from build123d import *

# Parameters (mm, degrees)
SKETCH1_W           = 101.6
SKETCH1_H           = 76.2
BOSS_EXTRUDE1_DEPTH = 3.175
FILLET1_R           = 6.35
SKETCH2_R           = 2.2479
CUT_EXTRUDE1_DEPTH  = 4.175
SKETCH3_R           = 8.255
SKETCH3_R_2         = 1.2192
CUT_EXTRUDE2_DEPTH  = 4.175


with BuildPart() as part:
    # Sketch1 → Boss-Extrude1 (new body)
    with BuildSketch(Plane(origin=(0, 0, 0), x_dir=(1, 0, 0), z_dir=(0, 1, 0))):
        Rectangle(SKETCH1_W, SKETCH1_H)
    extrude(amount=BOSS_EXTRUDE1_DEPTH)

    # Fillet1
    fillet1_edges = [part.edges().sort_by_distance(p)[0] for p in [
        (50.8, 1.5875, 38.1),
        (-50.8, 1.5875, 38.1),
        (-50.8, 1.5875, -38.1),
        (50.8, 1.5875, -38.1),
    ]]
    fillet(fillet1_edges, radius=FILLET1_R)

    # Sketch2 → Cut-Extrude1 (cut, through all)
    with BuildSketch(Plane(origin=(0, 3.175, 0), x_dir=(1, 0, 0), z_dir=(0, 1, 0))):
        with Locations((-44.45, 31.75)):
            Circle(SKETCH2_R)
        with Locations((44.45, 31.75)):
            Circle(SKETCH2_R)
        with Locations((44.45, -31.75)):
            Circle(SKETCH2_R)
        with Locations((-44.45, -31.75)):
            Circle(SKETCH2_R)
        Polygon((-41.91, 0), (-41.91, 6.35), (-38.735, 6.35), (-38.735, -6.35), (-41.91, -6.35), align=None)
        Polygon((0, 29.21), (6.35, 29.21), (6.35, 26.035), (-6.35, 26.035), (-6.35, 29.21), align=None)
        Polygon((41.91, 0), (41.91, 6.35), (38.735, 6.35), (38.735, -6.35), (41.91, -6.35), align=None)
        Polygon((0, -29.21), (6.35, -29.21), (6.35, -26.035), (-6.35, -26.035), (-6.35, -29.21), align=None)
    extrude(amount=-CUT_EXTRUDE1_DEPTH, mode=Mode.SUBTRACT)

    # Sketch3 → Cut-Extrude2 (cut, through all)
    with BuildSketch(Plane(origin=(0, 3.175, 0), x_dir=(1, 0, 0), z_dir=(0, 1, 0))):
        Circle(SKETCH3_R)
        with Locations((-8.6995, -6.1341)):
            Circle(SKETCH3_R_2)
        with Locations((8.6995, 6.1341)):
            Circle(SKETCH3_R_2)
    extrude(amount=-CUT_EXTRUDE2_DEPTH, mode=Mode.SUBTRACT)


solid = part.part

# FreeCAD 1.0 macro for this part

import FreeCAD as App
import Part
import Sketcher
from FreeCAD import Vector
Q = App.Units.Quantity


def edges_at(feature, points):
    """Names of the edges that pass closest to the given points."""
    edges = feature.Shape.Edges
    near = lambda p: min(range(len(edges)), key=lambda i: edges[i].distToShape(Part.Vertex(*p))[0])
    return sorted({f"Edge{near(p) + 1}" for p in points})


def add_polygon(sketch, points):
    """Adds a closed chain of lines whose ends are joined by coincident constraints."""
    first, n = sketch.GeometryCount, len(points)
    for a, b in zip(points, points[1:] + points[:1]):
        sketch.addGeometry(Part.LineSegment(App.Vector(*a, 0), App.Vector(*b, 0)), False)
    for i in range(n):
        sketch.addConstraint(Sketcher.Constraint("Coincident", first + i, 2, first + (i + 1) % n, 1))

doc = App.newDocument("Part")
body = doc.addObject("PartDesign::Body", "Body")

sketch1 = body.newObject("Sketcher::SketchObject", "Sketch")
sketch1.AttachmentSupport = (doc.getObject("XZ_Plane"), [""])
sketch1.MapMode = "FlatFace"
add_polygon(sketch1, [(-50.8, -38.1), (-50.8, 38.1), (50.8, 38.1), (50.8, -38.1)])
sketch1.addConstraint([
    Sketcher.Constraint("Vertical", 0),
    Sketcher.Constraint("Horizontal", 1),
    Sketcher.Constraint("Vertical", 2),
    Sketcher.Constraint("Horizontal", 3),
    Sketcher.Constraint("Symmetric", 0, 2, 2, 2, -1, 1),
    Sketcher.Constraint("DistanceX", 1, 1, 1, 2, Q("4 in")),
    Sketcher.Constraint("DistanceY", 0, 1, 0, 2, Q("3 in")),
])
pad1 = body.newObject("PartDesign::Pad", "Pad")
pad1.Profile = sketch1
pad1.Length = Q("0.125 in")
pad1.Reversed = True
doc.recompute()

fillet = body.newObject("PartDesign::Fillet", "Fillet")
fillet.Base = (pad1, edges_at(pad1, [
    (50.8, 1.587, 38.1),
    (-50.8, 1.587, 38.1),
    (-50.8, 1.587, -38.1),
    (50.8, 1.587, -38.1),
]))
fillet.Radius = Q("0.25 in")

sketch2 = body.newObject("Sketcher::SketchObject", "Sketch001")
sketch2.AttachmentSupport = (doc.getObject("XZ_Plane"), [""])
sketch2.MapMode = "FlatFace"
sketch2.AttachmentOffset = App.Placement(Vector(0, 0, -0.125 * 25.4), App.Rotation())
sketch2.addGeometry(Part.Circle(Vector(-44.45, -31.75, 0), Vector(0, 0, 1), 2.2479), False)
sketch2.addGeometry(Part.Circle(Vector(44.45, -31.75, 0), Vector(0, 0, 1), 2.2479), False)
sketch2.addGeometry(Part.Circle(Vector(44.45, 31.75, 0), Vector(0, 0, 1), 2.2479), False)
sketch2.addGeometry(Part.Circle(Vector(-44.45, 31.75, 0), Vector(0, 0, 1), 2.2479), False)
add_polygon(sketch2, [(-41.91, -6.35), (-41.91, 6.35), (-38.735, 6.35), (-38.735, -6.35)])
add_polygon(sketch2, [(6.35, -29.21), (-6.35, -29.21), (-6.35, -26.035), (6.35, -26.035)])
add_polygon(sketch2, [(41.91, -6.35), (38.735, -6.35), (38.735, 6.35), (41.91, 6.35)])
add_polygon(sketch2, [(6.35, 29.21), (6.35, 26.035), (-6.35, 26.035), (-6.35, 29.21)])
sketch2.addConstraint([
    Sketcher.Constraint("Vertical", 4),
    Sketcher.Constraint("Horizontal", 5),
    Sketcher.Constraint("Vertical", 6),
    Sketcher.Constraint("Horizontal", 7),
    Sketcher.Constraint("Horizontal", 8),
    Sketcher.Constraint("Vertical", 9),
    Sketcher.Constraint("Horizontal", 10),
    Sketcher.Constraint("Vertical", 11),
    Sketcher.Constraint("Horizontal", 12),
    Sketcher.Constraint("Vertical", 13),
    Sketcher.Constraint("Horizontal", 14),
    Sketcher.Constraint("Vertical", 15),
    Sketcher.Constraint("Vertical", 16),
    Sketcher.Constraint("Horizontal", 17),
    Sketcher.Constraint("Vertical", 18),
    Sketcher.Constraint("Horizontal", 19),
    Sketcher.Constraint("Equal", 0, 1),
    Sketcher.Constraint("Equal", 1, 2),
    Sketcher.Constraint("Equal", 2, 3),
    Sketcher.Constraint("Symmetric", 0, 3, 2, 3, -1, 1),
    Sketcher.Constraint("Symmetric", 1, 3, 3, 3, -1, 1),
    Sketcher.Constraint("Symmetric", 5, 2, 12, 2, -1, 1),
    Sketcher.Constraint("Symmetric", 7, 2, 14, 2, -1, 1),
    Sketcher.Constraint("Symmetric", 9, 2, 16, 2, -1, 1),
    Sketcher.Constraint("Symmetric", 11, 2, 18, 2, -1, 1),
    Sketcher.Constraint("Symmetric", 0, 3, 1, 3, -2),
    Sketcher.Constraint("Horizontal", 7, 2, 12, 2),
    Sketcher.Constraint("Vertical", 11, 2, 16, 2),
    Sketcher.Constraint("Equal", 19, 4),
    Sketcher.Constraint("Equal", 14, 9),
    Sketcher.Constraint("Diameter", 0, Q("0.177 in")),
    Sketcher.Constraint("DistanceX", 8, 2, 8, 1, Q("0.5 in")),
    Sketcher.Constraint("DistanceY", 4, 2, 3, 3, Q("1 in")),
    Sketcher.Constraint("DistanceX", 0, 3, 10, 2, Q("2 in")),
    Sketcher.Constraint("DistanceX", 3, 3, 4, 2, Q("0.1 in")),
    Sketcher.Constraint("DistanceY", 0, 3, 8, 2, Q("0.1 in")),
    Sketcher.Constraint("DistanceX", 5, 1, 5, 2, Q("0.125 in")),
])
pocket1 = body.newObject("PartDesign::Pocket", "Pocket")
pocket1.Profile = sketch2
pocket1.Type = "ThroughAll"
pocket1.Reversed = True

sketch3 = body.newObject("Sketcher::SketchObject", "Sketch002")
sketch3.AttachmentSupport = (doc.getObject("XZ_Plane"), [""])
sketch3.MapMode = "FlatFace"
sketch3.AttachmentOffset = App.Placement(Vector(0, 0, -0.125 * 25.4), App.Rotation())
sketch3.addGeometry([
    Part.Circle(Vector(0, 0, 0), Vector(0, 0, 1), 8.255),
    Part.Circle(Vector(-8.6995, 6.1341, 0), Vector(0, 0, 1), 1.2192),
    Part.Circle(Vector(8.6995, -6.1341, 0), Vector(0, 0, 1), 1.2192),
], False)
sketch3.addConstraint([
    Sketcher.Constraint("Coincident", 0, 3, -1, 1),
    Sketcher.Constraint("Equal", 1, 2),
    Sketcher.Constraint("Symmetric", 1, 3, 2, 3, -1, 1),
    Sketcher.Constraint("Diameter", 0, Q("0.65 in")),
    Sketcher.Constraint("Diameter", 1, Q("0.096 in")),
    Sketcher.Constraint("DistanceX", 1, 3, 2, 3, Q("0.685 in")),
    Sketcher.Constraint("DistanceY", 2, 3, 1, 3, Q("0.483 in")),
])
pocket2 = body.newObject("PartDesign::Pocket", "Pocket001")
pocket2.Profile = sketch3
pocket2.Type = "ThroughAll"
pocket2.Reversed = True

doc.recompute()
